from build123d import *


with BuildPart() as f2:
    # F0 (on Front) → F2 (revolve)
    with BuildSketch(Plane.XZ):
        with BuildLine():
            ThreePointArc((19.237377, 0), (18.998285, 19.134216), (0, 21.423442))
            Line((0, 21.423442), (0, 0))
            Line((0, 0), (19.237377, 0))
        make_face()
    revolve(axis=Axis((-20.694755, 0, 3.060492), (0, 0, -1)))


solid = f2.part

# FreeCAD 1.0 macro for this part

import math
import FreeCAD as App
import Part
import Sketcher
from FreeCAD import Vector

doc = App.newDocument("Part")
body = doc.addObject("PartDesign::Body", "Body")

sketch1 = doc.addObject("Sketcher::SketchObject", "Sketch")
body.addObject(sketch1)
sketch1.AttachmentSupport = (doc.XZ_Plane, [""])
sketch1.MapMode = "FlatFace"
sketch1.addGeometry([
    Part.ArcOfCircle(Part.Circle(Vector(8, 9, 0), Vector(0, 0, 1), 15), math.radians(-40), math.radians(124)),
    Part.LineSegment(Vector(0, 21, 0), Vector(0, 0, 0)),
    Part.LineSegment(Vector(0, 0, 0), Vector(19, 0, 0)),
], False)
sketch1.addGeometry(Part.LineSegment(Vector(-21, 21, 0), Vector(-21, 0, 0)), True)
sketch1.addConstraint([
    Sketcher.Constraint("Coincident", 0, 2, 1, 1),
    Sketcher.Constraint("Coincident", 1, 2, 2, 1),
    Sketcher.Constraint("Coincident", 2, 2, 0, 1),
    Sketcher.Constraint("Vertical", 1),
    Sketcher.Constraint("Horizontal", 2),
    Sketcher.Constraint("Vertical", 3),
    Sketcher.Constraint("Coincident", 1, 2, -1, 1),
    Sketcher.Constraint("PointOnObject", 3, 2, -1),
    Sketcher.Constraint("Horizontal", 0, 2, 3, 1),
    Sketcher.Constraint("Radius", 0, 14.52367),
    Sketcher.Constraint("DistanceX", 2, 1, 2, 2, 19.237377),
    Sketcher.Constraint("DistanceY", 1, 2, 1, 1, 21.423442),
    Sketcher.Constraint("DistanceX", 3, 1, 2, 2, 39.932132),
])
revolution = doc.addObject("PartDesign::Revolution", "Revolution")
body.addObject(revolution)
revolution.Profile = sketch1
revolution.ReferenceAxis = (sketch1, ["Axis0"])
revolution.Angle = 360

doc.recompute()
